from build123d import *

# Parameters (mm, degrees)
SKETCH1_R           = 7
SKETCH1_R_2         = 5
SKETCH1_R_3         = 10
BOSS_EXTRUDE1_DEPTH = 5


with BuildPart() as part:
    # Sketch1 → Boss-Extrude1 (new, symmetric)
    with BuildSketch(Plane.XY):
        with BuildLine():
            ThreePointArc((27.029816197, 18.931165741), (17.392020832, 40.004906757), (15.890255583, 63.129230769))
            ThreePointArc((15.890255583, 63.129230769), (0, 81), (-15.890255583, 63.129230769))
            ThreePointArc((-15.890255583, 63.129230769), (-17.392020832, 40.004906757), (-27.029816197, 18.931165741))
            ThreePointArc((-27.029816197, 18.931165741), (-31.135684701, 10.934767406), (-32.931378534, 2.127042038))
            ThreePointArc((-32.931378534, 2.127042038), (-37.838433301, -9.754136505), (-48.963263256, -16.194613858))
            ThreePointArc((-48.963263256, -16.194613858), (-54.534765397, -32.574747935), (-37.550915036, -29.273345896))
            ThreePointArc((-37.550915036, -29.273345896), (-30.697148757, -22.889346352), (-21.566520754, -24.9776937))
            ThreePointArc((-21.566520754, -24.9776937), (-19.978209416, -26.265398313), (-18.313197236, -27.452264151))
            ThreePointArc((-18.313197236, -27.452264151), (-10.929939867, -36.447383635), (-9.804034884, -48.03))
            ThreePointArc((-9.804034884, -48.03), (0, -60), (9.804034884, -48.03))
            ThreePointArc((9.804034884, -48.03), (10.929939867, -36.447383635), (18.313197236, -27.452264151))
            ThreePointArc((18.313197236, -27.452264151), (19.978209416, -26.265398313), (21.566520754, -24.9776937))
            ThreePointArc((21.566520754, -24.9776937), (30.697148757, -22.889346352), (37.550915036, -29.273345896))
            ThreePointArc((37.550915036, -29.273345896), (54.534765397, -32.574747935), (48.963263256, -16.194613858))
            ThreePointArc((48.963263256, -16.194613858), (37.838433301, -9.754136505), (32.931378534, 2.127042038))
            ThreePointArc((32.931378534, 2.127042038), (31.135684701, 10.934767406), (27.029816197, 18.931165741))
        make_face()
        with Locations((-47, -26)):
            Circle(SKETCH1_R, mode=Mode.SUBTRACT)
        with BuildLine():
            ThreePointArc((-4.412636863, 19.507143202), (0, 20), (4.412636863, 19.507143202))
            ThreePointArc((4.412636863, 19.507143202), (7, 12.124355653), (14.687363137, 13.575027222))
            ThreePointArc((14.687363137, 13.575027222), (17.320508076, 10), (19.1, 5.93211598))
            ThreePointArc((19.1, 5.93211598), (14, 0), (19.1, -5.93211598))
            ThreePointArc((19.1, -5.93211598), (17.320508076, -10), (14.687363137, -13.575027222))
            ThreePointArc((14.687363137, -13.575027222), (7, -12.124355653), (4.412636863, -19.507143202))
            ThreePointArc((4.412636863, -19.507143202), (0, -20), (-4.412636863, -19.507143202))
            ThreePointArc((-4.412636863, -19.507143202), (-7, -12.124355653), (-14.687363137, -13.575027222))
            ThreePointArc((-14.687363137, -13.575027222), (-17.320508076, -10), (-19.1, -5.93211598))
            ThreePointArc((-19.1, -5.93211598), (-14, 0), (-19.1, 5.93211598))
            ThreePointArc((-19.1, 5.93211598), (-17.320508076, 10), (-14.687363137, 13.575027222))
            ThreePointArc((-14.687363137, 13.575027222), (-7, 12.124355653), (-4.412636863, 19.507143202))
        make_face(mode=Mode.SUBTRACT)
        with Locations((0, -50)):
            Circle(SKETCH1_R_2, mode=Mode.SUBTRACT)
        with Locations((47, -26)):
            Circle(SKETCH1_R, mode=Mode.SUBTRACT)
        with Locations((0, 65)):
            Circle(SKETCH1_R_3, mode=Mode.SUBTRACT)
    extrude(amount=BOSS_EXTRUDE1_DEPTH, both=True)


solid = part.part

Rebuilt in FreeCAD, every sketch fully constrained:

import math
import FreeCAD as App
import Part
import Sketcher

V = App.Vector

doc = App.newDocument("Part")
body = doc.addObject("PartDesign::Body", "Body")

# Sketch on XY plane
sketch1 = body.newObject("Sketcher::SketchObject", "Sketch")
sketch1.AttachmentSupport = (doc.getObject("XY_Plane"), [""])
sketch1.MapMode = "FlatFace"
sketch1.addGeometry([
    Part.ArcOfCircle(Part.Circle(V(79.5, 55.6, 0), V(0, 0, 1), 64), math.radians(173), math.radians(215)),  # 0
    Part.ArcOfCircle(Part.Circle(V(0, 65, 0), V(0, 0, 1), 16), math.radians(-7), math.radians(187)),  # 1
    Part.ArcOfCircle(Part.Circle(V(-79.5, 55.6, 0), V(0, 0, 1), 64), math.radians(-35), math.radians(7)),  # 2
    Part.ArcOfCircle(Part.Circle(V(0, 0, 0), V(0, 0, 1), 33), math.radians(145), math.radians(176)),  # 3
    Part.ArcOfCircle(Part.Circle(V(-52.9, 3.4, 0), V(0, 0, 1), 20), math.radians(-79), math.radians(-4)),  # 4
    Part.ArcOfCircle(Part.Circle(V(-47, -26, 0), V(0, 0, 1), 10), math.radians(101), math.radians(341)),  # 5
    Part.ArcOfCircle(Part.Circle(V(-28.1, -32.5, 0), V(0, 0, 1), 10), math.radians(49), math.radians(161)),  # 6
    Part.ArcOfCircle(Part.Circle(V(0, 0, 0), V(0, 0, 1), 33), math.radians(-130.81), math.radians(-123.71)),  # 7
    Part.ArcOfCircle(Part.Circle(V(-29.4, -44.1, 0), V(0, 0, 1), 20), math.radians(-11), math.radians(56)),  # 8
    Part.ArcOfCircle(Part.Circle(V(0, -50, 0), V(0, 0, 1), 10), math.radians(169), math.radians(371)),  # 9
    Part.ArcOfCircle(Part.Circle(V(29.4, -44.1, 0), V(0, 0, 1), 20), math.radians(124), math.radians(191)),  # 10
    Part.ArcOfCircle(Part.Circle(V(0, 0, 0), V(0, 0, 1), 33), math.radians(-56.29), math.radians(-49.19)),  # 11
    Part.ArcOfCircle(Part.Circle(V(28.1, -32.5, 0), V(0, 0, 1), 10), math.radians(19), math.radians(131)),  # 12
    Part.ArcOfCircle(Part.Circle(V(47, -26, 0), V(0, 0, 1), 10), math.radians(-161), math.radians(79)),  # 13
    Part.ArcOfCircle(Part.Circle(V(52.9, 3.4, 0), V(0, 0, 1), 20), math.radians(-176), math.radians(-101)),  # 14
    Part.ArcOfCircle(Part.Circle(V(0, 0, 0), V(0, 0, 1), 33), math.radians(4), math.radians(35)),  # 15
    Part.Circle(V(-47, -26, 0), V(0, 0, 1), 7),  # 16
    Part.Circle(V(0, -50, 0), V(0, 0, 1), 5),  # 17
    Part.Circle(V(47, -26, 0), V(0, 0, 1), 7),  # 18
    Part.ArcOfCircle(Part.Circle(V(-10, 17.3, 0), V(0, 0, 1), 6), math.radians(-141), math.radians(21)),  # 19
    Part.ArcOfCircle(Part.Circle(V(0, 0, 0), V(0, 0, 1), 20), math.radians(77), math.radians(103)),  # 20
    Part.ArcOfCircle(Part.Circle(V(10, 17.3, 0), V(0, 0, 1), 6), math.radians(159), math.radians(321)),  # 21
    Part.ArcOfCircle(Part.Circle(V(0, 0, 0), V(0, 0, 1), 20), math.radians(17), math.radians(43)),  # 22
    Part.ArcOfCircle(Part.Circle(V(20, 0, 0), V(0, 0, 1), 6), math.radians(99), math.radians(261)),  # 23
    Part.ArcOfCircle(Part.Circle(V(0, 0, 0), V(0, 0, 1), 20), math.radians(-43), math.radians(-17)),  # 24
    Part.ArcOfCircle(Part.Circle(V(10, -17.3, 0), V(0, 0, 1), 6), math.radians(39), math.radians(201)),  # 25
    Part.ArcOfCircle(Part.Circle(V(0, 0, 0), V(0, 0, 1), 20), math.radians(-103), math.radians(-77)),  # 26
    Part.ArcOfCircle(Part.Circle(V(-10, -17.3, 0), V(0, 0, 1), 6), math.radians(-21), math.radians(141)),  # 27
    Part.ArcOfCircle(Part.Circle(V(0, 0, 0), V(0, 0, 1), 20), math.radians(-163), math.radians(-137)),  # 28
    Part.ArcOfCircle(Part.Circle(V(-20, 0, 0), V(0, 0, 1), 6), math.radians(-81), math.radians(81)),  # 29
    Part.ArcOfCircle(Part.Circle(V(0, 0, 0), V(0, 0, 1), 20), math.radians(137), math.radians(163)),  # 30
    Part.Circle(V(0, 65, 0), V(0, 0, 1), 10),  # 31
], False)
sketch1.addConstraint([
    Sketcher.Constraint("Tangent", 0, 1, 1, 1),
    Sketcher.Constraint("Tangent", 1, 2, 2, 2),
    Sketcher.Constraint("Tangent", 2, 1, 3, 1),
    Sketcher.Constraint("Tangent", 3, 2, 4, 2),
    Sketcher.Constraint("Tangent", 4, 1, 5, 1),
    Sketcher.Constraint("Tangent", 5, 2, 6, 2),
    Sketcher.Constraint("Tangent", 6, 1, 7, 1),
    Sketcher.Constraint("Tangent", 7, 2, 8, 2),
    Sketcher.Constraint("Tangent", 8, 1, 9, 1),
    Sketcher.Constraint("Tangent", 9, 2, 10, 2),
    Sketcher.Constraint("Tangent", 10, 1, 11, 1),
    Sketcher.Constraint("Tangent", 11, 2, 12, 2),
    Sketcher.Constraint("Tangent", 12, 1, 13, 1),
    Sketcher.Constraint("Tangent", 13, 2, 14, 2),
    Sketcher.Constraint("Tangent", 14, 1, 15, 1),
    Sketcher.Constraint("Tangent", 15, 2, 0, 2),
    Sketcher.Constraint("Coincident", 19, 2, 20, 2),
    Sketcher.Constraint("Coincident", 20, 1, 21, 1),
    Sketcher.Constraint("Coincident", 21, 2, 22, 2),
    Sketcher.Constraint("Coincident", 22, 1, 23, 1),
    Sketcher.Constraint("Coincident", 23, 2, 24, 2),
    Sketcher.Constraint("Coincident", 24, 1, 25, 1),
    Sketcher.Constraint("Coincident", 25, 2, 26, 2),
    Sketcher.Constraint("Coincident", 26, 1, 27, 1),
    Sketcher.Constraint("Coincident", 27, 2, 28, 2),
    Sketcher.Constraint("Coincident", 28, 1, 29, 1),
    Sketcher.Constraint("Coincident", 29, 2, 30, 2),
    Sketcher.Constraint("Coincident", 30, 1, 19, 1),
    Sketcher.Constraint("Coincident", 3, 3, -1, 1),
    Sketcher.Constraint("Coincident", 7, 3, -1, 1),
    Sketcher.Constraint("Coincident", 11, 3, -1, 1),
    Sketcher.Constraint("Coincident", 15, 3, -1, 1),
    Sketcher.Constraint("Coincident", 20, 3, -1, 1),
    Sketcher.Constraint("Coincident", 22, 3, -1, 1),
    Sketcher.Constraint("Coincident", 24, 3, -1, 1),
    Sketcher.Constraint("Coincident", 26, 3, -1, 1),
    Sketcher.Constraint("Coincident", 28, 3, -1, 1),
    Sketcher.Constraint("Coincident", 30, 3, -1, 1),
    Sketcher.Constraint("Coincident", 16, 3, 5, 3),
    Sketcher.Constraint("Coincident", 17, 3, 9, 3),
    Sketcher.Constraint("Coincident", 18, 3, 13, 3),
    Sketcher.Constraint("Coincident", 31, 3, 1, 3),
    Sketcher.Constraint("Equal", 0, 2),
    Sketcher.Constraint("Equal", 5, 6),
    Sketcher.Constraint("Equal", 3, 7),
    Sketcher.Constraint("Equal", 4, 8),
    Sketcher.Constraint("Equal", 6, 9),
    Sketcher.Constraint("Equal", 8, 10),
    Sketcher.Constraint("Equal", 7, 11),
    Sketcher.Constraint("Equal", 9, 12),
    Sketcher.Constraint("Equal", 12, 13),
    Sketcher.Constraint("Equal", 10, 14),
    Sketcher.Constraint("Equal", 11, 15),
    Sketcher.Constraint("Equal", 16, 18),
    Sketcher.Constraint("Equal", 14, 20),
    Sketcher.Constraint("Equal", 19, 21),
    Sketcher.Constraint("Equal", 20, 22),
    Sketcher.Constraint("Equal", 21, 23),
    Sketcher.Constraint("Equal", 22, 24),
    Sketcher.Constraint("Equal", 23, 25),
    Sketcher.Constraint("Equal", 24, 26),
    Sketcher.Constraint("Equal", 25, 27),
    Sketcher.Constraint("Equal", 26, 28),
    Sketcher.Constraint("Equal", 27, 29),
    Sketcher.Constraint("Equal", 28, 30),
    Sketcher.Constraint("Equal", 13, 31),
    Sketcher.Constraint("Symmetric", 19, 3, 25, 3, -1, 1),
    Sketcher.Constraint("Symmetric", 21, 3, 27, 3, -1, 1),
    Sketcher.Constraint("Symmetric", 23, 3, 29, 3, -1, 1),
    Sketcher.Constraint("Symmetric", 5, 3, 13, 3, -2),
    Sketcher.Constraint("Symmetric", 19, 3, 21, 3, -2),
    Sketcher.Constraint("PointOnObject", 1, 3, -2),
    Sketcher.Constraint("PointOnObject", 9, 3, -2),
    Sketcher.Constraint("PointOnObject", 23, 3, -1),
    Sketcher.Constraint("Diameter", 16, 14.0),
    Sketcher.Constraint("Diameter", 17, 10.0),
    Sketcher.Constraint("Diameter", 31, 20.0),
    Sketcher.Constraint("Radius", 0, 64.0),
    Sketcher.Constraint("Radius", 1, 16.0),
    Sketcher.Constraint("Radius", 3, 33.0),
    Sketcher.Constraint("Radius", 4, 20.0),
    Sketcher.Constraint("Radius", 19, 6.0),
    Sketcher.Constraint("DistanceY", -1, 1, 1, 3, 65.0),
    Sketcher.Constraint("DistanceX", 5, 3, -1, 1, 47.0),
    Sketcher.Constraint("DistanceY", 5, 3, -1, 1, 26.0),
    Sketcher.Constraint("DistanceY", 9, 3, -1, 1, 50.0),
    Sketcher.Constraint("DistanceX", 19, 3, -1, 1, 10.0),
    Sketcher.Constraint("DistanceX", -1, 1, 23, 3, 20.0),
    Sketcher.Constraint("DistanceY", -1, 1, 19, 3, 17.320508),
])
pad1 = body.newObject("PartDesign::Pad", "Pad")
pad1.Profile = sketch1
pad1.Length = 10
pad1.Midplane = True

doc.recompute()
